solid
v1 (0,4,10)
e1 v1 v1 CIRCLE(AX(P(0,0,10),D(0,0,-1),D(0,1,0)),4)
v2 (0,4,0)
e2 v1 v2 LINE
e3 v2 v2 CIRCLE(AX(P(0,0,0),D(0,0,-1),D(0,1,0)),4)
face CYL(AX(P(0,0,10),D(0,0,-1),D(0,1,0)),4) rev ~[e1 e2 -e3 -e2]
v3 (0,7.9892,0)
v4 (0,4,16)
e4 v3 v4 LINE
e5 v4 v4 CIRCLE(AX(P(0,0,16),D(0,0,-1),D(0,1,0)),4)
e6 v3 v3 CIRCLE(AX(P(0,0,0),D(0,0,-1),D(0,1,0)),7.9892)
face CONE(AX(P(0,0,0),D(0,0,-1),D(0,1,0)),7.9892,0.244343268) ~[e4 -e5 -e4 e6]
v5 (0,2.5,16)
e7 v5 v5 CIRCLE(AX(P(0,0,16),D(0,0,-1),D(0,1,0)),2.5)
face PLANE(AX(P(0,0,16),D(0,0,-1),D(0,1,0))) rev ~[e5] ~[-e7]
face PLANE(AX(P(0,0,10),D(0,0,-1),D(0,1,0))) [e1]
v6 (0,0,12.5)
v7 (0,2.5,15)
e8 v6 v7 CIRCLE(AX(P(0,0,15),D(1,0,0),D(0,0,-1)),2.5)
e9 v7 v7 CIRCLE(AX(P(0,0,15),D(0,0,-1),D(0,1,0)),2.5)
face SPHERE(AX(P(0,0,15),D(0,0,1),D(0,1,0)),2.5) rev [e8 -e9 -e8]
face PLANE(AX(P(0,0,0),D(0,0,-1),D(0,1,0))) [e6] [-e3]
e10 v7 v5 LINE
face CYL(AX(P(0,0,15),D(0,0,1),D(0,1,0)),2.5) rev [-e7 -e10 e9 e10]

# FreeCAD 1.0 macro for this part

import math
import FreeCAD as App
import Part
import Sketcher
Q = App.Units.Quantity

doc = App.newDocument("Part")
params = doc.addObject("Spreadsheet::Sheet", "Params")
for row, (alias, value) in enumerate([
    ("sketch1_radius", "2.5 mm"),
    ("sketch1_width", "4 mm"),
    ("sketch1_height", "10 mm"),
    ("sketch1_height2", "1 mm"),
    ("revolution_angle", "360 deg"),
], start=1):
    params.set(f"A{row}", alias)
    params.set(f"B{row}", "=" + value)
    params.setAlias(f"B{row}", alias)

body = doc.addObject("PartDesign::Body", "Body")

sketch1 = body.newObject("Sketcher::SketchObject", "Sketch")
sketch1.AttachmentSupport = (doc.getObject("YZ_Plane"), [""])
sketch1.MapMode = "FlatFace"
sketch1.addGeometry([
    Part.ArcOfCircle(Part.Circle(App.Vector(0, 15, 0), App.Vector(0, 0, 1), 2.5), math.radians(-90), math.radians(0)),
    Part.LineSegment(App.Vector(0, 12.5, 0), App.Vector(0, 10, 0)),
    Part.LineSegment(App.Vector(0, 10, 0), App.Vector(4, 10, 0)),
    Part.LineSegment(App.Vector(4, 10, 0), App.Vector(4, 0, 0)),
    Part.LineSegment(App.Vector(4, 0, 0), App.Vector(7.9892, 0, 0)),
    Part.LineSegment(App.Vector(7.9892, 0, 0), App.Vector(4, 16, 0)),
    Part.LineSegment(App.Vector(4, 16, 0), App.Vector(2.5, 16, 0)),
    Part.LineSegment(App.Vector(2.5, 16, 0), App.Vector(2.5, 15, 0)),
], False)
sketch1.addConstraint([
    Sketcher.Constraint("Coincident", 0, 1, 1, 1),
    Sketcher.Constraint("Coincident", 1, 2, 2, 1),
    Sketcher.Constraint("Coincident", 2, 2, 3, 1),
    Sketcher.Constraint("Coincident", 3, 2, 4, 1),
    Sketcher.Constraint("Coincident", 4, 2, 5, 1),
    Sketcher.Constraint("Coincident", 5, 2, 6, 1),
    Sketcher.Constraint("Coincident", 6, 2, 7, 1),
    Sketcher.Constraint("Tangent", 7, 2, 0, 2),
    Sketcher.Constraint("Vertical", 1),
    Sketcher.Constraint("Horizontal", 2),
    Sketcher.Constraint("Vertical", 3),
    Sketcher.Constraint("Horizontal", 4),
    Sketcher.Constraint("Horizontal", 6),
    Sketcher.Constraint("Vertical", 7),
    Sketcher.Constraint("PointOnObject", 0, 3, -2),
    Sketcher.Constraint("PointOnObject", 0, 1, -2),
    Sketcher.Constraint("PointOnObject", 3, 2, -1),
    Sketcher.Constraint("Vertical", 3, 2, 5, 2),
    Sketcher.Constraint("Radius", 0, Q("2.5 mm")),
    Sketcher.Constraint("DistanceX", 2, 1, 2, 2, Q("4 mm")),
    Sketcher.Constraint("DistanceY", 3, 2, 3, 1, Q("10 mm")),
    Sketcher.Constraint("DistanceY", 7, 2, 7, 1, Q("1 mm")),
    Sketcher.Constraint("Angle", 5, Q("103.9998 deg")),
    Sketcher.Constraint("DistanceY", -1, 1, 5, 2, Q("16 mm")),
])
sketch1.setExpression("Constraints[18]", "Params.sketch1_radius")
sketch1.setExpression("Constraints[19]", "Params.sketch1_width")
sketch1.setExpression("Constraints[20]", "Params.sketch1_height")
sketch1.setExpression("Constraints[21]", "Params.sketch1_height2")
revolution = body.newObject("PartDesign::Revolution", "Revolution")
revolution.Profile = sketch1
revolution.ReferenceAxis = (sketch1, ["V_Axis"])
revolution.setExpression("Angle", "Params.revolution_angle")

doc.recompute()
